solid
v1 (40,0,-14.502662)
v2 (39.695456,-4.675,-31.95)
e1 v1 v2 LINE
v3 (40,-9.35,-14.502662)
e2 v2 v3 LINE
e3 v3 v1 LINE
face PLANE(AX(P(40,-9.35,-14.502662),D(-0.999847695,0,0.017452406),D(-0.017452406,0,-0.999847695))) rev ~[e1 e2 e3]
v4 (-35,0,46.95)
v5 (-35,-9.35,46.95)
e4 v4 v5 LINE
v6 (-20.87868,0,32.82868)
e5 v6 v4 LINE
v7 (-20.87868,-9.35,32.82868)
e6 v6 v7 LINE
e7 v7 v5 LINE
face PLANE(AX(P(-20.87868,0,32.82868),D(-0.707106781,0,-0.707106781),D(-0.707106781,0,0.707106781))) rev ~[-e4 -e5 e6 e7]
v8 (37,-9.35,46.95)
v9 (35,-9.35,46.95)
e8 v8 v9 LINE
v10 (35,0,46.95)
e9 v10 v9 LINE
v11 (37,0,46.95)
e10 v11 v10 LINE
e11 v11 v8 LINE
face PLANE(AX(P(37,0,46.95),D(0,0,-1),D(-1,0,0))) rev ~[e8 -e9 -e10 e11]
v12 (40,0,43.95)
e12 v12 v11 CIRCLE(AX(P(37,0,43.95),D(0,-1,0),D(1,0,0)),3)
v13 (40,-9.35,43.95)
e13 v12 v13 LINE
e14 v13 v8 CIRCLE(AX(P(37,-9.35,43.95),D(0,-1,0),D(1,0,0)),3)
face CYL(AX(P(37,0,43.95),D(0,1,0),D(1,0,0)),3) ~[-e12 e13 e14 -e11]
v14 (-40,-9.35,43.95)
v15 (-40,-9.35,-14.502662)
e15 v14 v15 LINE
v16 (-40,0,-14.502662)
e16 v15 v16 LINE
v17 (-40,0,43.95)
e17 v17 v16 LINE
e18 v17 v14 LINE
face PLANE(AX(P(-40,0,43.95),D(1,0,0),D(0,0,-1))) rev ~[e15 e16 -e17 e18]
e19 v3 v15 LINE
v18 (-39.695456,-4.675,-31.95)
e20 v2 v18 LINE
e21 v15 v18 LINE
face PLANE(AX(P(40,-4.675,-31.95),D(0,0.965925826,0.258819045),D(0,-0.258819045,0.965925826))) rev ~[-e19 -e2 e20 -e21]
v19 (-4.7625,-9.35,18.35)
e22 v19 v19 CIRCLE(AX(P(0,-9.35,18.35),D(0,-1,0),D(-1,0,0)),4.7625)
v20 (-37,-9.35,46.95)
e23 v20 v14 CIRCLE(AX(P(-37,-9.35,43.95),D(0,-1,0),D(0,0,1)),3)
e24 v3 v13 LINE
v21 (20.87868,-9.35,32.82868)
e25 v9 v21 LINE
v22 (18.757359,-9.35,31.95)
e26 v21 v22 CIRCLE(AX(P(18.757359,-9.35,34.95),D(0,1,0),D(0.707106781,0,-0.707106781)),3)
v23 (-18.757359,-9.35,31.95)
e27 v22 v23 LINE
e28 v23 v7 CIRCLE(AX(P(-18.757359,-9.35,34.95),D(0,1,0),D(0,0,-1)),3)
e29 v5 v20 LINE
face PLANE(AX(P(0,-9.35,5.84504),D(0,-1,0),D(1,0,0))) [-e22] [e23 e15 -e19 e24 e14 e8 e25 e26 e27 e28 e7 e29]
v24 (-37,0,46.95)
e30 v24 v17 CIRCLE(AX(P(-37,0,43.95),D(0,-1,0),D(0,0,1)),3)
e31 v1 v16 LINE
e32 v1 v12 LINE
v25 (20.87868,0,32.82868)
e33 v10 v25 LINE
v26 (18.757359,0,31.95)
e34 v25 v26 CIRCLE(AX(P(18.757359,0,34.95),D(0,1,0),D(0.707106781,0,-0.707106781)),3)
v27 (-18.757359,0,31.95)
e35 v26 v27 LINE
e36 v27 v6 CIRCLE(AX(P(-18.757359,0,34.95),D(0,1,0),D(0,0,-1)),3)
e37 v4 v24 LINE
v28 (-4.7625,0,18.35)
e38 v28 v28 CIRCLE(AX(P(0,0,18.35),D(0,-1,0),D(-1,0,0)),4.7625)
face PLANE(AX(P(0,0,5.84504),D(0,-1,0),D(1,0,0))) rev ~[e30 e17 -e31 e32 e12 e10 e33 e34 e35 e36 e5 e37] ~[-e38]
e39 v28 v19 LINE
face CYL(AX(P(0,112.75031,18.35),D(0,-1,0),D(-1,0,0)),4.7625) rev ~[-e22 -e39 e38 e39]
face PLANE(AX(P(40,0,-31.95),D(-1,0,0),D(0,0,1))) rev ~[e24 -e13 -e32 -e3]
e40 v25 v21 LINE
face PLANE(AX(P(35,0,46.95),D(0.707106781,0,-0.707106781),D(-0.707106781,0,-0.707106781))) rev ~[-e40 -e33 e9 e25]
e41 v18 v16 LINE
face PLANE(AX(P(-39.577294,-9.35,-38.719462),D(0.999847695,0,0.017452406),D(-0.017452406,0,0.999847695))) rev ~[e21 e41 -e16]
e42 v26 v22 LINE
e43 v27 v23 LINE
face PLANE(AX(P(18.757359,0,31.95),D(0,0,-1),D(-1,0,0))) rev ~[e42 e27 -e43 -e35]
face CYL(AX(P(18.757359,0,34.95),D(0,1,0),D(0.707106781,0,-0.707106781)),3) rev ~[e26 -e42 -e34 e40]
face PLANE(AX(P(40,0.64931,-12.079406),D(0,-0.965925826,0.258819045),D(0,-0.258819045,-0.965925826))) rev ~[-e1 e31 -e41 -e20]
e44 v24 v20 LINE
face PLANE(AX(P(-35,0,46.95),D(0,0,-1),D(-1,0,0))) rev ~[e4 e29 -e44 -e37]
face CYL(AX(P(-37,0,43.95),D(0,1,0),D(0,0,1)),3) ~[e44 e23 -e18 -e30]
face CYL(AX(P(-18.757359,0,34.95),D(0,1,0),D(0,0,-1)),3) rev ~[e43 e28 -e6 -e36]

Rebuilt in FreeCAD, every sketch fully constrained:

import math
import FreeCAD as App
import Part
import Sketcher
from FreeCAD import Vector
Q = App.Units.Quantity


def add_polygon(sketch, points):
    """Adds a closed chain of lines whose ends are joined by coincident constraints."""
    first, n = sketch.GeometryCount, len(points)
    for a, b in zip(points, points[1:] + points[:1]):
        sketch.addGeometry(Part.LineSegment(App.Vector(*a, 0), App.Vector(*b, 0)), False)
    for i in range(n):
        sketch.addConstraint(Sketcher.Constraint("Coincident", first + i, 2, first + (i + 1) % n, 1))

doc = App.newDocument("Part")
body = doc.addObject("PartDesign::Body", "Body")

sketch1 = doc.addObject("Sketcher::SketchObject", "Sketch")
body.addObject(sketch1)
sketch1.AttachmentSupport = (doc.XZ_Plane, [""])
sketch1.MapMode = "FlatFace"
sketch1.addGeometry(Part.LineSegment(Vector(-40, -31.9, 0), Vector(40, -31.9, 0)), False)
sketch1.addGeometry(Part.LineSegment(Vector(40, -31.9, 0), Vector(40, 44, 0)), False)
sketch1.addGeometry(Part.ArcOfCircle(Part.Circle(Vector(37, 44, 0), Vector(0, 0, 1), 3), math.radians(0), math.radians(90)), False)
sketch1.addGeometry(Part.LineSegment(Vector(37, 47, 0), Vector(35, 47, 0)), False)
sketch1.addGeometry(Part.LineSegment(Vector(35, 47, 0), Vector(20.9, 32.8, 0)), False)
sketch1.addGeometry(Part.ArcOfCircle(Part.Circle(Vector(18.8, 35, 0), Vector(0, 0, 1), 3), math.radians(-90), math.radians(-45)), False)
sketch1.addGeometry(Part.LineSegment(Vector(18.8, 31.9, 0), Vector(-18.8, 31.9, 0)), False)
sketch1.addGeometry(Part.ArcOfCircle(Part.Circle(Vector(-18.8, 35, 0), Vector(0, 0, 1), 3), math.radians(-135), math.radians(-90)), False)
sketch1.addGeometry(Part.LineSegment(Vector(-20.9, 32.8, 0), Vector(-35, 47, 0)), False)
sketch1.addGeometry(Part.LineSegment(Vector(-35, 47, 0), Vector(-37, 47, 0)), False)
sketch1.addGeometry(Part.ArcOfCircle(Part.Circle(Vector(-37, 44, 0), Vector(0, 0, 1), 3), math.radians(90), math.radians(180)), False)
sketch1.addGeometry(Part.LineSegment(Vector(-40, 44, 0), Vector(-40, -31.9, 0)), False)
sketch1.addConstraint(Sketcher.Constraint("Coincident", 0, 2, 1, 1))
sketch1.addConstraint(Sketcher.Constraint("Tangent", 1, 2, 2, 1))
sketch1.addConstraint(Sketcher.Constraint("Tangent", 2, 2, 3, 1))
sketch1.addConstraint(Sketcher.Constraint("Coincident", 3, 2, 4, 1))
sketch1.addConstraint(Sketcher.Constraint("Tangent", 4, 2, 5, 2))
sketch1.addConstraint(Sketcher.Constraint("Tangent", 5, 1, 6, 1))
sketch1.addConstraint(Sketcher.Constraint("Tangent", 6, 2, 7, 2))
sketch1.addConstraint(Sketcher.Constraint("Tangent", 7, 1, 8, 1))
sketch1.addConstraint(Sketcher.Constraint("Coincident", 8, 2, 9, 1))
sketch1.addConstraint(Sketcher.Constraint("Tangent", 9, 2, 10, 1))
sketch1.addConstraint(Sketcher.Constraint("Tangent", 10, 2, 11, 1))
sketch1.addConstraint(Sketcher.Constraint("Coincident", 11, 2, 0, 1))
sketch1.addConstraint(Sketcher.Constraint("Horizontal", 0))
sketch1.addConstraint(Sketcher.Constraint("Vertical", 1))
sketch1.addConstraint(Sketcher.Constraint("Horizontal", 3))
sketch1.addConstraint(Sketcher.Constraint("Horizontal", 6))
sketch1.addConstraint(Sketcher.Constraint("Horizontal", 9))
sketch1.addConstraint(Sketcher.Constraint("Vertical", 11))
sketch1.addConstraint(Sketcher.Constraint("Equal", 2, 5))
sketch1.addConstraint(Sketcher.Constraint("Equal", 5, 7))
sketch1.addConstraint(Sketcher.Constraint("Equal", 7, 10))
sketch1.addConstraint(Sketcher.Constraint("Symmetric", 2, 3, 10, 3, -2))
sketch1.addConstraint(Sketcher.Constraint("Symmetric", 4, 2, 7, 1, -2))
sketch1.addConstraint(Sketcher.Constraint("Perpendicular", 4, 8))
sketch1.addConstraint(Sketcher.Constraint("Radius", 2, Q("3 mm")))
sketch1.addConstraint(Sketcher.Constraint("DistanceX", 0, 1, 0, 2, Q("80 mm")))
sketch1.addConstraint(Sketcher.Constraint("DistanceX", 3, 2, 3, 1, Q("2 mm")))
sketch1.addConstraint(Sketcher.Constraint("DistanceY", 1, 1, 1, 2, Q("75.9 mm")))
sketch1.addConstraint(Sketcher.Constraint("DistanceY", 5, 3, 2, 3, Q("9 mm")))
sketch1.addConstraint(Sketcher.Constraint("DistanceY", -1, 1, 2, 3, Q("43.95 mm")))
pad1 = doc.addObject("PartDesign::Pad", "Pad")
body.addObject(pad1)
pad1.Profile = sketch1
pad1.Length = 9.35

sketch2 = doc.addObject("Sketcher::SketchObject", "Sketch001")
body.addObject(sketch2)
sketch2.AttachmentSupport = (doc.YZ_Plane, [""])
sketch2.MapMode = "FlatFace"
sketch2.AttachmentOffset = App.Placement(Vector(0, 0, 40), App.Rotation())
add_polygon(sketch2, [(0.6, -12.1), (-4.7, -31.9), (-10, -12.1), (-14.3, -12.1), (-14.3, -36.8), (6.1, -36.8), (6.1, -12.1)])
sketch2.addConstraint(Sketcher.Constraint("Horizontal", 2))
sketch2.addConstraint(Sketcher.Constraint("Vertical", 3))
sketch2.addConstraint(Sketcher.Constraint("Horizontal", 4))
sketch2.addConstraint(Sketcher.Constraint("Vertical", 5))
sketch2.addConstraint(Sketcher.Constraint("Horizontal", 6))
sketch2.addConstraint(Sketcher.Constraint("Horizontal", 2, 2, 5, 2))
sketch2.addConstraint(Sketcher.Constraint("Equal", 0, 1))
sketch2.addConstraint(Sketcher.Constraint("Angle", 0, Q("-105 deg")))
sketch2.addConstraint(Sketcher.Constraint("DistanceY", 0, 2, -1, 1, Q("31.95 mm")))
sketch2.addConstraint(Sketcher.Constraint("DistanceX", 0, 2, -1, 1, Q("4.675 mm")))
sketch2.addConstraint(Sketcher.Constraint("DistanceX", 6, 2, 6, 1, Q("5.407709 mm")))
sketch2.addConstraint(Sketcher.Constraint("DistanceY", 3, 2, 3, 1, Q("24.735428 mm")))
sketch2.addConstraint(Sketcher.Constraint("DistanceX", 2, 2, 2, 1, Q("4.252758 mm")))
sketch2.addConstraint(Sketcher.Constraint("DistanceX", 4, 1, 4, 2, Q("20.309086 mm")))
pocket1 = doc.addObject("PartDesign::Pocket", "Pocket")
body.addObject(pocket1)
pocket1.Profile = sketch2
pocket1.Type = "ThroughAll"

sketch3 = doc.addObject("Sketcher::SketchObject", "Sketch002")
body.addObject(sketch3)
sketch3.AttachmentSupport = (doc.XZ_Plane, [""])
sketch3.MapMode = "FlatFace"
sketch3.AttachmentOffset = App.Placement(Vector(0, 0, 9.35), App.Rotation())
add_polygon(sketch3, [(-40, -39), (-40, -15), (-52, -15), (-52, -39)])
add_polygon(sketch3, [(49, -15), (40, -15), (40, -40), (49, -40)])
sketch3.addConstraint(Sketcher.Constraint("Horizontal", 1))
sketch3.addConstraint(Sketcher.Constraint("Vertical", 2))
sketch3.addConstraint(Sketcher.Constraint("Horizontal", 3))
sketch3.addConstraint(Sketcher.Constraint("Horizontal", 4))
sketch3.addConstraint(Sketcher.Constraint("Horizontal", 6))
sketch3.addConstraint(Sketcher.Constraint("Vertical", 7))
sketch3.addConstraint(Sketcher.Constraint("Symmetric", 0, 2, 4, 2, -2))
sketch3.addConstraint(Sketcher.Constraint("Angle", 0, Q("91 deg")))
sketch3.addConstraint(Sketcher.Constraint("Angle", 5, Q("-91 deg")))
sketch3.addConstraint(Sketcher.Constraint("DistanceX", 0, 2, -1, 1, Q("40 mm")))
sketch3.addConstraint(Sketcher.Constraint("DistanceY", 2, 2, 2, 1, Q("24.2168 mm")))
sketch3.addConstraint(Sketcher.Constraint("DistanceX", 4, 2, 4, 1, Q("8.822512 mm")))
sketch3.addConstraint(Sketcher.Constraint("Distance", 5, Q("25.19209 mm")))
sketch3.addConstraint(Sketcher.Constraint("DistanceX", 1, 2, 1, 1, Q("12.087247 mm")))
sketch3.addConstraint(Sketcher.Constraint("DistanceY", 0, 2, -1, 1, Q("14.502662 mm")))
pocket2 = doc.addObject("PartDesign::Pocket", "Pocket001")
body.addObject(pocket2)
pocket2.Profile = sketch3
pocket2.Type = "ThroughAll"

sketch4 = doc.addObject("Sketcher::SketchObject", "Sketch003")
body.addObject(sketch4)
sketch4.AttachmentSupport = (doc.XZ_Plane, [""])
sketch4.MapMode = "FlatFace"
sketch4.addGeometry(Part.Circle(Vector(0, 18.4, 0), Vector(0, 0, 1), 4.8), False)
sketch4.addConstraint(Sketcher.Constraint("PointOnObject", 0, 3, -2))
sketch4.addConstraint(Sketcher.Constraint("Diameter", 0, Q("9.525 mm")))
sketch4.addConstraint(Sketcher.Constraint("DistanceY", -1, 1, 0, 3, Q("18.35 mm")))
doc.recompute()
hole = doc.addObject("PartDesign::Hole", "Hole")
body.addObject(hole)
hole.Profile = sketch4
hole.ThreadType = "None"
hole.Diameter = 9.525
hole.DepthType = "ThroughAll"
hole.Reversed = True

doc.recompute()
